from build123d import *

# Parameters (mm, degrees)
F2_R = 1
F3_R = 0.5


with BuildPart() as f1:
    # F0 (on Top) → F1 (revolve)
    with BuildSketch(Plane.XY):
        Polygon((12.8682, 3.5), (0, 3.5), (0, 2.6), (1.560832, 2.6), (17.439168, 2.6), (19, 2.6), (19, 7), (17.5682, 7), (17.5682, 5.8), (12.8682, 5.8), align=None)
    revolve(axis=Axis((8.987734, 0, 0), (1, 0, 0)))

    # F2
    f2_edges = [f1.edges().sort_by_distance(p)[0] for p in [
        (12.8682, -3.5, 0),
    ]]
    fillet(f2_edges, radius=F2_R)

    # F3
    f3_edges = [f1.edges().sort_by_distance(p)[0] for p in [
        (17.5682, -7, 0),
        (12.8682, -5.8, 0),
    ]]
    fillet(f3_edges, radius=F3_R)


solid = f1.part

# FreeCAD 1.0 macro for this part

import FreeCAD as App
import Part
import Sketcher
from FreeCAD import Vector


def edges_at(feature, points):
    """Names of the edges that pass closest to the given points."""
    edges = feature.Shape.Edges
    near = lambda p: min(range(len(edges)), key=lambda i: edges[i].distToShape(Part.Vertex(*p))[0])
    return sorted({f"Edge{near(p) + 1}" for p in points})


def add_polygon(sketch, points):
    """Adds a closed chain of lines whose ends are joined by coincident constraints."""
    first, n = sketch.GeometryCount, len(points)
    for a, b in zip(points, points[1:] + points[:1]):
        sketch.addGeometry(Part.LineSegment(App.Vector(*a, 0), App.Vector(*b, 0)), False)
    for i in range(n):
        sketch.addConstraint(Sketcher.Constraint("Coincident", first + i, 2, first + (i + 1) % n, 1))

doc = App.newDocument("Part")
params = doc.addObject("Spreadsheet::Sheet", "Params")
for row, (alias, value) in enumerate([
    ("sketch1_width", "19 mm"),
    ("sketch1_width2", "4.7 mm"),
    ("sketch1_height", "0.9 mm"),
    ("sketch1_height2", "4.4 mm"),
    ("sketch1_height3", "1.2 mm"),
    ("revolution_angle", "360 deg"),
    ("fillet_radius", "1 mm"),
    ("fillet2_radius", "0.5 mm"),
], start=1):
    params.set(f"A{row}", alias)
    params.set(f"B{row}", "=" + value)
    params.setAlias(f"B{row}", alias)

body = doc.addObject("PartDesign::Body", "Body")

sketch1 = body.newObject("Sketcher::SketchObject", "Sketch")
sketch1.AttachmentSupport = (doc.getObject("XY_Plane"), [""])
sketch1.MapMode = "FlatFace"
add_polygon(sketch1, [(12.9, 3.5), (0, 3.5), (0, 2.6), (19, 2.6), (19, 7), (17.6, 7), (17.6, 5.8), (12.9, 5.8)])
sketch1.addConstraint(Sketcher.Constraint("Horizontal", 0))
sketch1.addConstraint(Sketcher.Constraint("Vertical", 1))
sketch1.addConstraint(Sketcher.Constraint("Horizontal", 2))
sketch1.addConstraint(Sketcher.Constraint("Vertical", 3))
sketch1.addConstraint(Sketcher.Constraint("Horizontal", 4))
sketch1.addConstraint(Sketcher.Constraint("Vertical", 5))
sketch1.addConstraint(Sketcher.Constraint("Horizontal", 6))
sketch1.addConstraint(Sketcher.Constraint("Vertical", 7))
sketch1.addConstraint(Sketcher.Constraint("PointOnObject", 0, 2, -2))
sketch1.addConstraint(Sketcher.Constraint("DistanceX", 2, 1, 2, 2, 19.0))
sketch1.addConstraint(Sketcher.Constraint("DistanceX", 6, 2, 6, 1, 4.7))
sketch1.addConstraint(Sketcher.Constraint("DistanceY", 1, 2, 1, 1, 0.9))
sketch1.addConstraint(Sketcher.Constraint("DistanceY", 3, 1, 3, 2, 4.4))
sketch1.addConstraint(Sketcher.Constraint("DistanceY", 5, 2, 5, 1, 1.2))
sketch1.addConstraint(Sketcher.Constraint("DistanceY", -1, 1, 3, 2, 7.0))
sketch1.addConstraint(Sketcher.Constraint("DistanceX", 0, 2, 0, 1, 12.8682))
sketch1.setExpression("Constraints[17]", "Params.sketch1_width")
sketch1.setExpression("Constraints[18]", "Params.sketch1_width2")
sketch1.setExpression("Constraints[19]", "Params.sketch1_height")
sketch1.setExpression("Constraints[20]", "Params.sketch1_height2")
sketch1.setExpression("Constraints[21]", "Params.sketch1_height3")
revolution = body.newObject("PartDesign::Revolution", "Revolution")
revolution.Profile = sketch1
revolution.ReferenceAxis = (sketch1, ["H_Axis"])
revolution.setExpression("Angle", "Params.revolution_angle")
doc.recompute()

fillet = body.newObject("PartDesign::Fillet", "Fillet")
fillet.Base = (revolution, edges_at(revolution, [(12.868, -3.5, 0)]))
fillet.setExpression("Radius", "Params.fillet_radius")
doc.recompute()

fillet2 = body.newObject("PartDesign::Fillet", "Fillet001")
fillet2.Base = (fillet, edges_at(fillet, [(17.568, -7, 0), (12.868, -5.8, 0)]))
fillet2.setExpression("Radius", "Params.fillet2_radius")

doc.recompute()
